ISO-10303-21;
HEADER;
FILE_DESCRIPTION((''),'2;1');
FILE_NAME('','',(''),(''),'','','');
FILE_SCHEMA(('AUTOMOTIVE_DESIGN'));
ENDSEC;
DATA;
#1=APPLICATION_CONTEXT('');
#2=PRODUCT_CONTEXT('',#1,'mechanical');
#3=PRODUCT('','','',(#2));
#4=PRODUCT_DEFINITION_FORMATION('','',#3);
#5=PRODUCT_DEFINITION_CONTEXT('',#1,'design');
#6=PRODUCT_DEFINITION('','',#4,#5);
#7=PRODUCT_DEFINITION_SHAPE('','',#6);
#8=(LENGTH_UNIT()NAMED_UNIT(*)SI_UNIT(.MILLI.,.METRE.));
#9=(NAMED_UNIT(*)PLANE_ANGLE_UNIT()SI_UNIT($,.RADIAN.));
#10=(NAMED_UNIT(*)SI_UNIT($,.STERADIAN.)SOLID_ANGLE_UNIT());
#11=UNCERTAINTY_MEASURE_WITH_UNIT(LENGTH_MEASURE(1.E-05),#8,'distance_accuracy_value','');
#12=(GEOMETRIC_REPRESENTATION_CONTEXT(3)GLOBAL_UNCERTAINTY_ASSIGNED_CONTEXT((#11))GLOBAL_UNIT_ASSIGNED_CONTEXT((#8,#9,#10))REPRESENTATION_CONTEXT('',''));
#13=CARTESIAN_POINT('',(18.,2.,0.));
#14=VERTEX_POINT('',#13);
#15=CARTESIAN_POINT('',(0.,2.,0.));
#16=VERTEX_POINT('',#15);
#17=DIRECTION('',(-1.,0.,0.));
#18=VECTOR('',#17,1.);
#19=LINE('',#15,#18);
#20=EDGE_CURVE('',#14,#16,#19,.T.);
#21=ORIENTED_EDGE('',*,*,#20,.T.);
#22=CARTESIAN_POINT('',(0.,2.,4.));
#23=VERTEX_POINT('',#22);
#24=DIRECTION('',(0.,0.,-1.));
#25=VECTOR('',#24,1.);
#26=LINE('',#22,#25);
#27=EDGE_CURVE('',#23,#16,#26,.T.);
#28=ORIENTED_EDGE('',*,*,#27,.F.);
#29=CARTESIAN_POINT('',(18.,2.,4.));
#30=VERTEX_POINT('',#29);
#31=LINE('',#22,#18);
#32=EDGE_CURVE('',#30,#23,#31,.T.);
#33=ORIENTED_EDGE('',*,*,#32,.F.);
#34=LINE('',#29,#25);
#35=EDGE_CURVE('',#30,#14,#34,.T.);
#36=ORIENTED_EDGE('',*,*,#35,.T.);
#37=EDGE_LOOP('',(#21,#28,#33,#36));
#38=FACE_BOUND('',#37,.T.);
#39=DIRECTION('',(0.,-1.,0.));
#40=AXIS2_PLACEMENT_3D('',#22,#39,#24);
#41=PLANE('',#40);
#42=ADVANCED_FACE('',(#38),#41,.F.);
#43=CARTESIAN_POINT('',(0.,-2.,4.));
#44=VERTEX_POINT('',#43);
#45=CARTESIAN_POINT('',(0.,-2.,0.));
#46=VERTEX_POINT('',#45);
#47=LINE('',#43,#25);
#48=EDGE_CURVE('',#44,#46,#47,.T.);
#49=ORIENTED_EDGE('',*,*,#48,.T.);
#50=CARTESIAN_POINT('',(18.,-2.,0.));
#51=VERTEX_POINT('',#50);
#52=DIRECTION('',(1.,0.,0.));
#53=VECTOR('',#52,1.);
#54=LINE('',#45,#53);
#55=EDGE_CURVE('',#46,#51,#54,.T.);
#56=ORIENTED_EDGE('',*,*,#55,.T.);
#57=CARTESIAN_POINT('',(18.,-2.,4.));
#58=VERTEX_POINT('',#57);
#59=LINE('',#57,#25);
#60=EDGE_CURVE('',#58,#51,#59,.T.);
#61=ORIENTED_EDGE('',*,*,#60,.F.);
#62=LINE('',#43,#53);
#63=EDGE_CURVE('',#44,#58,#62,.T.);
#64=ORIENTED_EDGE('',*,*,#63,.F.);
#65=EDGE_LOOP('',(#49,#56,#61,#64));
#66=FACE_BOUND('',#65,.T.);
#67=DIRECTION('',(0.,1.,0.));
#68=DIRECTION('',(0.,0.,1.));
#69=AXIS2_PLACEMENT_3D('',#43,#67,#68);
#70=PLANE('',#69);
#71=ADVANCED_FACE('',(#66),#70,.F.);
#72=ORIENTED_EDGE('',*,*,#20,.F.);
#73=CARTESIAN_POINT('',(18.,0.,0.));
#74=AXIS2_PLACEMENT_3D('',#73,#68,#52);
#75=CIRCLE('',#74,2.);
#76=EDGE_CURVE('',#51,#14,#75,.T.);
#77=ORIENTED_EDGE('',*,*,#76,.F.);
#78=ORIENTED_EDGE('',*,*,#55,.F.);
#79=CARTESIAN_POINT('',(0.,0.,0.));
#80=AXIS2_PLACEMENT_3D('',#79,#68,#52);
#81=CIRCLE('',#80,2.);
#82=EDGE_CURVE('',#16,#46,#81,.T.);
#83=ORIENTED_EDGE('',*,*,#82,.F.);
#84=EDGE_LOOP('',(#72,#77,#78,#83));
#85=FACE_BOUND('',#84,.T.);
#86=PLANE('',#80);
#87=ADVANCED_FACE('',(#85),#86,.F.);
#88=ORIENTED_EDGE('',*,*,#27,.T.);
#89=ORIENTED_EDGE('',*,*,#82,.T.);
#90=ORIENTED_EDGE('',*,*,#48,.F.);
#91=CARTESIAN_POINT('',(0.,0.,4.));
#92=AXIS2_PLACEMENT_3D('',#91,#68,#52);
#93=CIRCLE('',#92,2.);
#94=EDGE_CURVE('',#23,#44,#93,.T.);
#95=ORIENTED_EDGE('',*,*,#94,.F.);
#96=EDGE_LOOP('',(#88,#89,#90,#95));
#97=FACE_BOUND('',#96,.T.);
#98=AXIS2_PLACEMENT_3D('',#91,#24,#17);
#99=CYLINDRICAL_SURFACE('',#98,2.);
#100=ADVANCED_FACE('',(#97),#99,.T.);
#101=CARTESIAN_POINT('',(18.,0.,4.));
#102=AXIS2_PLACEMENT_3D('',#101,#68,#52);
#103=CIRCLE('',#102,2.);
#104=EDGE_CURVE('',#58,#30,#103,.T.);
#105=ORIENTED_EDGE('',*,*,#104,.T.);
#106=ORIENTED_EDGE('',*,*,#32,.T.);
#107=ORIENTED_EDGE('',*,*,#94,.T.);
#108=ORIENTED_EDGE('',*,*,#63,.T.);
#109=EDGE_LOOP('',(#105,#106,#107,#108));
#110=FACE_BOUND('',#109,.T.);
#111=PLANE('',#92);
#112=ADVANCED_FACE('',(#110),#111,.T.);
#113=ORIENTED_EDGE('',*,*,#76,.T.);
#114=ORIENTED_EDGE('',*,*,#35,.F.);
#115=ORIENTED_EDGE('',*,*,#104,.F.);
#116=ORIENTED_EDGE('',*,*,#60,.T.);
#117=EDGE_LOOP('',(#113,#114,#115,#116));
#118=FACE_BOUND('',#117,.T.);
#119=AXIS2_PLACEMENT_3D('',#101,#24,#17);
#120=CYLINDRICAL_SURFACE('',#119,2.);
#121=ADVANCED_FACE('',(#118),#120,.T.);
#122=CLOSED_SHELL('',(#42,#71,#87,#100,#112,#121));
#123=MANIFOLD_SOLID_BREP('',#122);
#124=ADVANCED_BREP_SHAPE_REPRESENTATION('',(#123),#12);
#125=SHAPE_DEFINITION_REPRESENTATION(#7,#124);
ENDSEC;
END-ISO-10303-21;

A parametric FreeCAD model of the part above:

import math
import FreeCAD as App
import Part
import Sketcher
Q = App.Units.Quantity

doc = App.newDocument("Part")
params = doc.addObject("Spreadsheet::Sheet", "Params")
for row, (alias, value) in enumerate([
    ("sketch1_radius", "2 mm"),
    ("sketch1_width", "18 mm"),
    ("pad1_length", "4 mm"),
], start=1):
    params.set(f"A{row}", alias)
    params.set(f"B{row}", "=" + value)
    params.setAlias(f"B{row}", alias)

body = doc.addObject("PartDesign::Body", "Body")

sketch1 = doc.addObject("Sketcher::SketchObject", "Sketch")
body.addObject(sketch1)
sketch1.AttachmentSupport = (doc.XY_Plane, [""])
sketch1.MapMode = "FlatFace"
sketch1.addGeometry([
    Part.LineSegment(App.Vector(18, 2, 0), App.Vector(0, 2, 0)),
    Part.ArcOfCircle(Part.Circle(App.Vector(0, 0, 0), App.Vector(0, 0, 1), 2), math.radians(90), math.radians(270)),
    Part.LineSegment(App.Vector(0, -2, 0), App.Vector(18, -2, 0)),
    Part.ArcOfCircle(Part.Circle(App.Vector(18, 0, 0), App.Vector(0, 0, 1), 2), math.radians(-90), math.radians(90)),
], False)
sketch1.addConstraint([
    Sketcher.Constraint("Tangent", 0, 2, 1, 1),
    Sketcher.Constraint("Tangent", 1, 2, 2, 1),
    Sketcher.Constraint("Tangent", 2, 2, 3, 1),
    Sketcher.Constraint("Tangent", 3, 2, 0, 1),
    Sketcher.Constraint("Horizontal", 0),
    Sketcher.Constraint("Horizontal", 2),
    Sketcher.Constraint("Coincident", 1, 3, -1, 1),
    Sketcher.Constraint("Radius", 1, Q("2 mm")),
    Sketcher.Constraint("DistanceX", 0, 2, 0, 1, Q("18 mm")),
])
sketch1.setExpression("Constraints[7]", "Params.sketch1_radius")
sketch1.setExpression("Constraints[8]", "Params.sketch1_width")
pad1 = doc.addObject("PartDesign::Pad", "Pad")
body.addObject(pad1)
pad1.Profile = sketch1
pad1.setExpression("Length", "Params.pad1_length")

doc.recompute()
